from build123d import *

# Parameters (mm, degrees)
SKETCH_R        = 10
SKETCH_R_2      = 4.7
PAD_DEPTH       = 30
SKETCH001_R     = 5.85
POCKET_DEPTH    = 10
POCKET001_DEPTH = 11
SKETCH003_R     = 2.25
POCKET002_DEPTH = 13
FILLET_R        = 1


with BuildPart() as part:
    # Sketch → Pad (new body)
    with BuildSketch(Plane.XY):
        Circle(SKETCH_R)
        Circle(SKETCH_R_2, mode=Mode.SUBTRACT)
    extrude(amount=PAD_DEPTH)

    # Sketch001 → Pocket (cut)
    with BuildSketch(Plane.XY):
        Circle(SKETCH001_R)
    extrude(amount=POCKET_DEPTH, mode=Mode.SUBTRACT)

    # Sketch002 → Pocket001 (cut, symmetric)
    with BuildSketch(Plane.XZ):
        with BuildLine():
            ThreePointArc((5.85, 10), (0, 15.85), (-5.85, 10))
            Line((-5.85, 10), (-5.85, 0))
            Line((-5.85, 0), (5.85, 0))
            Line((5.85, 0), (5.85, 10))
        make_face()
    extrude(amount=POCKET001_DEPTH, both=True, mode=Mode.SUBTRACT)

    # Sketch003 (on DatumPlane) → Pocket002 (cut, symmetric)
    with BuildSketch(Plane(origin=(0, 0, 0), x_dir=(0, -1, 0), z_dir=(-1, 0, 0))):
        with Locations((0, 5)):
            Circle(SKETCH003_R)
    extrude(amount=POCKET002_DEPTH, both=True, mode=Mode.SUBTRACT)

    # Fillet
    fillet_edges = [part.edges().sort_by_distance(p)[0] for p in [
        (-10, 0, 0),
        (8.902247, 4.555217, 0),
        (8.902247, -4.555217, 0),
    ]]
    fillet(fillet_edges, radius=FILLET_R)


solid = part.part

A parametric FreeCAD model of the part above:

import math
import FreeCAD as App
import Part
import Sketcher

V = App.Vector


def edges_at(feature, points):
    """Names of the edges that pass closest to the given points."""
    edges = feature.Shape.Edges
    near = lambda p: min(range(len(edges)), key=lambda i: edges[i].distToShape(Part.Vertex(*p))[0])
    return sorted({f"Edge{near(p) + 1}" for p in points})

doc = App.newDocument("Part")
params = doc.addObject("Spreadsheet::Sheet", "Params")
for row, (alias, value) in enumerate([
    ("sketch1_diameter", "20 mm"),
    ("sketch1_diameter2", "9.4 mm"),
    ("pad1_length", "30 mm"),
    ("sketch2_diameter", "11.7 mm"),
    ("pocket1_length", "10 mm"),
    ("sketch3_height", "10 mm"),
    ("sketch3_radius", "5.85 mm"),
    ("pocket2_length", "22 mm"),
    ("sketch4_diameter", "4.5 mm"),
    ("pocket3_length", "26 mm"),
    ("fillet_radius", "1 mm"),
], start=1):
    params.set(f"A{row}", alias)
    params.set(f"B{row}", "=" + value)
    params.setAlias(f"B{row}", alias)

body = doc.addObject("PartDesign::Body", "Body")

# Sketch on XY plane
sketch1 = body.newObject("Sketcher::SketchObject", "Sketch")
sketch1.AttachmentSupport = (doc.getObject("XY_Plane"), [""])
sketch1.MapMode = "FlatFace"
sketch1.addGeometry(Part.Circle(V(0, 0, 0), V(0, 0, 1), 10), False)
sketch1.addGeometry(Part.Circle(V(0, 0, 0), V(0, 0, 1), 4.7), False)
sketch1.addConstraint(Sketcher.Constraint("Coincident", 0, 3, -1, 1))
sketch1.addConstraint(Sketcher.Constraint("Coincident", 1, 3, -1, 1))
sketch1.addConstraint(Sketcher.Constraint("Diameter", 0, 20.0))
sketch1.addConstraint(Sketcher.Constraint("Diameter", 1, 9.4))
sketch1.setExpression("Constraints[2]", "Params.sketch1_diameter")
sketch1.setExpression("Constraints[3]", "Params.sketch1_diameter2")
pad1 = body.newObject("PartDesign::Pad", "Pad")
pad1.Profile = sketch1
pad1.setExpression("Length", "Params.pad1_length")

# Sketch on XY plane
sketch2 = body.newObject("Sketcher::SketchObject", "Sketch001")
sketch2.AttachmentSupport = (doc.getObject("XY_Plane"), [""])
sketch2.MapMode = "FlatFace"
sketch2.addGeometry(Part.Circle(V(0, 0, 0), V(0, 0, 1), 6), False)
sketch2.addConstraint(Sketcher.Constraint("Coincident", 0, 3, -1, 1))
sketch2.addConstraint(Sketcher.Constraint("Diameter", 0, 11.7))
sketch2.setExpression("Constraints[1]", "Params.sketch2_diameter")
pocket1 = body.newObject("PartDesign::Pocket", "Pocket")
pocket1.Profile = sketch2
pocket1.setExpression("Length", "Params.pocket1_length")
pocket1.Reversed = True

# Sketch on XZ plane
sketch3 = body.newObject("Sketcher::SketchObject", "Sketch002")
sketch3.AttachmentSupport = (doc.getObject("XZ_Plane"), [""])
sketch3.MapMode = "FlatFace"
sketch3.addGeometry(Part.ArcOfCircle(Part.Circle(V(0, 10, 0), V(0, 0, 1), 6), math.radians(0), math.radians(180)), False)
sketch3.addGeometry(Part.LineSegment(V(-6, 10, 0), V(-6, 0, 0)), False)
sketch3.addGeometry(Part.LineSegment(V(-6, 0, 0), V(6, 0, 0)), False)
sketch3.addGeometry(Part.LineSegment(V(6, 0, 0), V(6, 10, 0)), False)
sketch3.addConstraint(Sketcher.Constraint("Tangent", 0, 2, 1, 1))
sketch3.addConstraint(Sketcher.Constraint("Coincident", 1, 2, 2, 1))
sketch3.addConstraint(Sketcher.Constraint("Coincident", 2, 2, 3, 1))
sketch3.addConstraint(Sketcher.Constraint("Tangent", 3, 2, 0, 1))
sketch3.addConstraint(Sketcher.Constraint("Vertical", 1))
sketch3.addConstraint(Sketcher.Constraint("Horizontal", 2))
sketch3.addConstraint(Sketcher.Constraint("Vertical", 3))
sketch3.addConstraint(Sketcher.Constraint("Symmetric", 1, 2, 2, 2, -1, 1))
sketch3.addConstraint(Sketcher.Constraint("DistanceY", 1, 2, 1, 1, 10.0))
sketch3.addConstraint(Sketcher.Constraint("Radius", 0, 5.85))
sketch3.setExpression("Constraints[8]", "Params.sketch3_height")
sketch3.setExpression("Constraints[9]", "Params.sketch3_radius")
pocket2 = body.newObject("PartDesign::Pocket", "Pocket001")
pocket2.Profile = sketch3
pocket2.setExpression("Length", "Params.pocket2_length")
pocket2.Midplane = True

# Sketch on YZ plane
sketch4 = body.newObject("Sketcher::SketchObject", "Sketch003")
sketch4.AttachmentSupport = (doc.getObject("YZ_Plane"), [""])
sketch4.MapMode = "FlatFace"
sketch4.addGeometry(Part.Circle(V(0, 5, 0), V(0, 0, 1), 2.2), False)
sketch4.addConstraint(Sketcher.Constraint("PointOnObject", 0, 3, -2))
sketch4.addConstraint(Sketcher.Constraint("Diameter", 0, 4.5))
sketch4.addConstraint(Sketcher.Constraint("DistanceY", -1, 1, 0, 3, 5.0))
sketch4.setExpression("Constraints[1]", "Params.sketch4_diameter")
pocket3 = body.newObject("PartDesign::Pocket", "Pocket002")
pocket3.Profile = sketch4
pocket3.setExpression("Length", "Params.pocket3_length")
pocket3.Midplane = True
doc.recompute()

fillet = body.newObject("PartDesign::Fillet", "Fillet")
fillet.Base = (pocket3, edges_at(pocket3, [(-10, 0, 0), (8.902, 4.555, 0), (8.902, -4.555, 0)]))
fillet.setExpression("Radius", "Params.fillet_radius")

doc.recompute()
